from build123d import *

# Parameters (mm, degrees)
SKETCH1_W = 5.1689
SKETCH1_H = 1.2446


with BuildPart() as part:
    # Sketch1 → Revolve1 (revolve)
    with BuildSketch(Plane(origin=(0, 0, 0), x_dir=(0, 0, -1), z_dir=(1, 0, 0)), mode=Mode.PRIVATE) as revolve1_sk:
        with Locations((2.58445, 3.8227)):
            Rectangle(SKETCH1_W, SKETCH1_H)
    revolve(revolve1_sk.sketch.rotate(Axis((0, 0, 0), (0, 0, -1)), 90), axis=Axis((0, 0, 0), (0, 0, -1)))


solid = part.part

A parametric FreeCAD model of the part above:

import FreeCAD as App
import Part
import Sketcher
from FreeCAD import Vector
Q = App.Units.Quantity


def add_polygon(sketch, points):
    """Adds a closed chain of lines whose ends are joined by coincident constraints."""
    first, n = sketch.GeometryCount, len(points)
    for a, b in zip(points, points[1:] + points[:1]):
        sketch.addGeometry(Part.LineSegment(App.Vector(*a, 0), App.Vector(*b, 0)), False)
    for i in range(n):
        sketch.addConstraint(Sketcher.Constraint("Coincident", first + i, 2, first + (i + 1) % n, 1))

doc = App.newDocument("Part")
body = doc.addObject("PartDesign::Body", "Body")

# Sketch on YZ plane
sketch1 = doc.addObject("Sketcher::SketchObject", "Sketch")
body.addObject(sketch1)
sketch1.AttachmentSupport = (doc.YZ_Plane, [""])
sketch1.MapMode = "FlatFace"
add_polygon(sketch1, [(4.445, 0), (3.2004, 0), (3.2004, -5.1689), (4.445, -5.1689)])  # lines 0-3
sketch1.addConstraint(Sketcher.Constraint("Horizontal", 0))
sketch1.addConstraint(Sketcher.Constraint("Vertical", 1))
sketch1.addConstraint(Sketcher.Constraint("Horizontal", 2))
sketch1.addConstraint(Sketcher.Constraint("Vertical", 3))
sketch1.addConstraint(Sketcher.Constraint("PointOnObject", 0, 2, -1))
sketch1.addConstraint(Sketcher.Constraint("DistanceX", 0, 2, 0, 1, Q("0.049 in")))
sketch1.addConstraint(Sketcher.Constraint("DistanceY", 1, 2, 1, 1, Q("0.2035 in")))
sketch1.addConstraint(Sketcher.Constraint("DistanceX", -1, 1, 0, 2, Q("0.126 in")))
revolution = doc.addObject("PartDesign::Revolution", "Revolution")
body.addObject(revolution)
revolution.Profile = sketch1
revolution.ReferenceAxis = (sketch1, ["V_Axis"])
revolution.Angle = 360

doc.recompute()
